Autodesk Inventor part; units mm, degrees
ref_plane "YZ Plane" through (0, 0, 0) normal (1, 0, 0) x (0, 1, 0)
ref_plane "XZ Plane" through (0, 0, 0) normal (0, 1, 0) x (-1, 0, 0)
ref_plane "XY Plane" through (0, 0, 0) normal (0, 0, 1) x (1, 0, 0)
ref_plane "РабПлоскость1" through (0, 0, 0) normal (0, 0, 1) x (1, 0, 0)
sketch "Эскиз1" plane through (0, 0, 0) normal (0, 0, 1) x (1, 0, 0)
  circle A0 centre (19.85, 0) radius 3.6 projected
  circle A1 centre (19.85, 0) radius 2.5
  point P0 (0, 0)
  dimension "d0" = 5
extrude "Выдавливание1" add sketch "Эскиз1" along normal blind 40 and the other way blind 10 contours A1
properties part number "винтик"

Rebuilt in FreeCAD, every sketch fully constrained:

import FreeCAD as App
import Part
import Sketcher

doc = App.newDocument("Part")
body = doc.addObject("PartDesign::Body", "Body")

# Sketch on XY plane
sketch1 = body.newObject("Sketcher::SketchObject", "Sketch")
sketch1.AttachmentSupport = (doc.getObject("XY_Plane"), [""])
sketch1.MapMode = "FlatFace"
sketch1.addGeometry(Part.Circle(App.Vector(19.9, 0, 0), App.Vector(0, 0, 1), 2.5), False)
sketch1.addConstraint([
    Sketcher.Constraint("PointOnObject", 0, 3, -1),
    Sketcher.Constraint("Diameter", 0, 5.0),
    Sketcher.Constraint("DistanceX", -1, 1, 0, 3, 19.85),
])
pad1 = body.newObject("PartDesign::Pad", "Pad")
pad1.Profile = sketch1
pad1.Type = "TwoLengths"
pad1.Length = 40
pad1.Length2 = 10

doc.recompute()
